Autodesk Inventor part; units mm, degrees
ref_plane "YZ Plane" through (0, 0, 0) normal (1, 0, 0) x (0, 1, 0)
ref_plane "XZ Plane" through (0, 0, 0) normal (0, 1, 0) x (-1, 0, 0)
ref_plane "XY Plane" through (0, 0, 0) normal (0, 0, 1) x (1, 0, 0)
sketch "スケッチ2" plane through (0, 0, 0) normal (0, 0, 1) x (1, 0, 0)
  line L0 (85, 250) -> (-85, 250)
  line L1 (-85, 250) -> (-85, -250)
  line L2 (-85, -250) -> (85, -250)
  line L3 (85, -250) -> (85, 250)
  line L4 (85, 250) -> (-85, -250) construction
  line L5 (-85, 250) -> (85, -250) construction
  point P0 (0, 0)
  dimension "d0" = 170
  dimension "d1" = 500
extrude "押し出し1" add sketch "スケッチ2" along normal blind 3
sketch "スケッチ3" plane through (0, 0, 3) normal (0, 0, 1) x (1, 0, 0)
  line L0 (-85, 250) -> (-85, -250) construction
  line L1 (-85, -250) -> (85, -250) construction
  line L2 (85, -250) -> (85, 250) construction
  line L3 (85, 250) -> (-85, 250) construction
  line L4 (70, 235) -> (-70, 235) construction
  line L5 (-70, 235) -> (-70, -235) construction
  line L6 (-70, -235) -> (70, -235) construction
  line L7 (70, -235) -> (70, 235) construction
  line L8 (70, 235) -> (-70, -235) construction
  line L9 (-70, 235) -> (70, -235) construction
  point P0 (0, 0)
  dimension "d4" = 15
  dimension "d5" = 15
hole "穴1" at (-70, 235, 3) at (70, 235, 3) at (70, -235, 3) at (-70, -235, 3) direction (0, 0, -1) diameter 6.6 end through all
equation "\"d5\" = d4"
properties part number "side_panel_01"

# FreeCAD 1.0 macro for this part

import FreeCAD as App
import Part
import Sketcher

V = App.Vector

doc = App.newDocument("Part")
body = doc.addObject("PartDesign::Body", "Body")

# Sketch on XY plane
sketch1 = doc.addObject("Sketcher::SketchObject", "Sketch")
body.addObject(sketch1)
sketch1.AttachmentSupport = (doc.XY_Plane, [""])
sketch1.MapMode = "FlatFace"
sketch1.addGeometry([
    Part.LineSegment(V(85, -250, 0), V(85, 250, 0)),
    Part.LineSegment(V(85, 250, 0), V(-85, 250, 0)),
    Part.LineSegment(V(-85, 250, 0), V(-85, -250, 0)),
    Part.LineSegment(V(-85, -250, 0), V(85, -250, 0)),
], False)
sketch1.addConstraint([
    Sketcher.Constraint("Coincident", 0, 2, 1, 1),
    Sketcher.Constraint("Coincident", 1, 2, 2, 1),
    Sketcher.Constraint("Coincident", 2, 2, 3, 1),
    Sketcher.Constraint("Coincident", 3, 2, 0, 1),
    Sketcher.Constraint("Vertical", 0),
    Sketcher.Constraint("Horizontal", 1),
    Sketcher.Constraint("Vertical", 2),
    Sketcher.Constraint("Horizontal", 3),
    Sketcher.Constraint("Symmetric", 0, 2, 2, 2, -1, 1),
    Sketcher.Constraint("DistanceX", 1, 2, 1, 1, 170.0),
    Sketcher.Constraint("DistanceY", 0, 1, 0, 2, 500.0),
])
pad1 = doc.addObject("PartDesign::Pad", "Pad")
body.addObject(pad1)
pad1.Profile = sketch1
pad1.Length = 3

# Sketch on XY plane
sketch2 = doc.addObject("Sketcher::SketchObject", "Sketch001")
body.addObject(sketch2)
sketch2.AttachmentSupport = (doc.XY_Plane, [""])
sketch2.MapMode = "FlatFace"
sketch2.AttachmentOffset = App.Placement(V(0, 0, 3), App.Rotation())
sketch2.addGeometry([
    Part.Circle(V(-70, 235, 0), V(0, 0, 1), 3.3),
    Part.Circle(V(70, 235, 0), V(0, 0, 1), 3.3),
    Part.Circle(V(70, -235, 0), V(0, 0, 1), 3.3),
    Part.Circle(V(-70, -235, 0), V(0, 0, 1), 3.3),
], False)
sketch2.addConstraint([
    Sketcher.Constraint("Equal", 0, 1),
    Sketcher.Constraint("Equal", 1, 2),
    Sketcher.Constraint("Equal", 2, 3),
    Sketcher.Constraint("Symmetric", 0, 3, 2, 3, -1, 1),
    Sketcher.Constraint("Symmetric", 1, 3, 3, 3, -1, 1),
    Sketcher.Constraint("Symmetric", 0, 3, 1, 3, -2),
    Sketcher.Constraint("Diameter", 0, 6.6),
    Sketcher.Constraint("DistanceX", 0, 3, -1, 1, 70.0),
    Sketcher.Constraint("DistanceY", -1, 1, 0, 3, 235.0),
])
doc.recompute()
hole = doc.addObject("PartDesign::Hole", "Hole")
body.addObject(hole)
hole.Profile = sketch2
hole.ThreadType = "None"
hole.Diameter = 6.6
hole.DepthType = "ThroughAll"

doc.recompute()
